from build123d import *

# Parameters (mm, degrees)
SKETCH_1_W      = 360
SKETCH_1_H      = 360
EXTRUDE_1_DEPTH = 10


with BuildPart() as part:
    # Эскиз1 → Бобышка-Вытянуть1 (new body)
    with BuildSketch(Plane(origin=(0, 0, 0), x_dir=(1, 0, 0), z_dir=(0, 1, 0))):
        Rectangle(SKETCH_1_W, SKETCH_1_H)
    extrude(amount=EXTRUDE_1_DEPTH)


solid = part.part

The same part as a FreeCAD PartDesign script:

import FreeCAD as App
import Part
import Sketcher
from FreeCAD import Vector

doc = App.newDocument("Part")
body = doc.addObject("PartDesign::Body", "Body")

sketch1 = doc.addObject("Sketcher::SketchObject", "Sketch")
body.addObject(sketch1)
sketch1.AttachmentSupport = (doc.XZ_Plane, [""])
sketch1.MapMode = "FlatFace"
sketch1.addGeometry(Part.LineSegment(Vector(-180, -180, 0), Vector(-180, 180, 0)), False)
sketch1.addGeometry(Part.LineSegment(Vector(-180, 180, 0), Vector(180, 180, 0)), False)
sketch1.addGeometry(Part.LineSegment(Vector(180, 180, 0), Vector(180, -180, 0)), False)
sketch1.addGeometry(Part.LineSegment(Vector(180, -180, 0), Vector(-180, -180, 0)), False)
sketch1.addConstraint(Sketcher.Constraint("Coincident", 0, 2, 1, 1))
sketch1.addConstraint(Sketcher.Constraint("Coincident", 1, 2, 2, 1))
sketch1.addConstraint(Sketcher.Constraint("Coincident", 2, 2, 3, 1))
sketch1.addConstraint(Sketcher.Constraint("Coincident", 3, 2, 0, 1))
sketch1.addConstraint(Sketcher.Constraint("Vertical", 0))
sketch1.addConstraint(Sketcher.Constraint("Horizontal", 1))
sketch1.addConstraint(Sketcher.Constraint("Vertical", 2))
sketch1.addConstraint(Sketcher.Constraint("Horizontal", 3))
sketch1.addConstraint(Sketcher.Constraint("Symmetric", 0, 2, 2, 2, -1, 1))
sketch1.addConstraint(Sketcher.Constraint("Equal", 3, 0))
sketch1.addConstraint(Sketcher.Constraint("DistanceX", 1, 1, 1, 2, 360.0))
pad1 = doc.addObject("PartDesign::Pad", "Pad")
body.addObject(pad1)
pad1.Profile = sketch1
pad1.Length = 10
pad1.Reversed = True

doc.recompute()
